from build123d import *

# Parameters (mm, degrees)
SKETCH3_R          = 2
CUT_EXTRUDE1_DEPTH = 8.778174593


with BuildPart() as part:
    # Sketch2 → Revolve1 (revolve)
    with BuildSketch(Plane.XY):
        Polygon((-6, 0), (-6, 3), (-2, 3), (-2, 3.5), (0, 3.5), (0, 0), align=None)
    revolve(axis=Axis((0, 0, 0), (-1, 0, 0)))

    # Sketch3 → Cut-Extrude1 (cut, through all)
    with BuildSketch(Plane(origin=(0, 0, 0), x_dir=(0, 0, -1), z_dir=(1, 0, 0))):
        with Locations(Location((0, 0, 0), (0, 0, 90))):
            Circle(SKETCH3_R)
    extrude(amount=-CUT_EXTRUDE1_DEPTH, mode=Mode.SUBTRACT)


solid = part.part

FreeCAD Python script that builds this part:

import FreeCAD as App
import Part
import Sketcher


def add_polygon(sketch, points):
    """Adds a closed chain of lines whose ends are joined by coincident constraints."""
    first, n = sketch.GeometryCount, len(points)
    for a, b in zip(points, points[1:] + points[:1]):
        sketch.addGeometry(Part.LineSegment(App.Vector(*a, 0), App.Vector(*b, 0)), False)
    for i in range(n):
        sketch.addConstraint(Sketcher.Constraint("Coincident", first + i, 2, first + (i + 1) % n, 1))

doc = App.newDocument("Part")
body = doc.addObject("PartDesign::Body", "Body")

sketch1 = body.newObject("Sketcher::SketchObject", "Sketch")
sketch1.AttachmentSupport = (doc.getObject("XY_Plane"), [""])
sketch1.MapMode = "FlatFace"
add_polygon(sketch1, [(-6, 3), (-6, 0), (0, 0), (0, 3.5), (-2, 3.5), (-2, 3)])
sketch1.addConstraint([
    Sketcher.Constraint("Vertical", 0),
    Sketcher.Constraint("Horizontal", 1),
    Sketcher.Constraint("Vertical", 2),
    Sketcher.Constraint("Horizontal", 3),
    Sketcher.Constraint("Vertical", 4),
    Sketcher.Constraint("Horizontal", 5),
    Sketcher.Constraint("Coincident", 1, 2, -1, 1),
    Sketcher.Constraint("DistanceX", 1, 1, 1, 2, 6.0),
    Sketcher.Constraint("DistanceX", 3, 2, 3, 1, 2.0),
    Sketcher.Constraint("DistanceY", 0, 2, 0, 1, 3.0),
    Sketcher.Constraint("DistanceY", 2, 1, 2, 2, 3.5),
])
revolution = body.newObject("PartDesign::Revolution", "Revolution")
revolution.Profile = sketch1
revolution.ReferenceAxis = (sketch1, ["H_Axis"])
revolution.Angle = 360

sketch2 = body.newObject("Sketcher::SketchObject", "Sketch001")
sketch2.AttachmentSupport = (doc.getObject("YZ_Plane"), [""])
sketch2.MapMode = "FlatFace"
sketch2.addGeometry(Part.Circle(App.Vector(0, 0, 0), App.Vector(0, 0, 1), 2), False)
sketch2.addConstraint([
    Sketcher.Constraint("Coincident", 0, 3, -1, 1),
    Sketcher.Constraint("Diameter", 0, 4.0),
])
pocket1 = body.newObject("PartDesign::Pocket", "Pocket")
pocket1.Profile = sketch2
pocket1.Type = "ThroughAll"

doc.recompute()
